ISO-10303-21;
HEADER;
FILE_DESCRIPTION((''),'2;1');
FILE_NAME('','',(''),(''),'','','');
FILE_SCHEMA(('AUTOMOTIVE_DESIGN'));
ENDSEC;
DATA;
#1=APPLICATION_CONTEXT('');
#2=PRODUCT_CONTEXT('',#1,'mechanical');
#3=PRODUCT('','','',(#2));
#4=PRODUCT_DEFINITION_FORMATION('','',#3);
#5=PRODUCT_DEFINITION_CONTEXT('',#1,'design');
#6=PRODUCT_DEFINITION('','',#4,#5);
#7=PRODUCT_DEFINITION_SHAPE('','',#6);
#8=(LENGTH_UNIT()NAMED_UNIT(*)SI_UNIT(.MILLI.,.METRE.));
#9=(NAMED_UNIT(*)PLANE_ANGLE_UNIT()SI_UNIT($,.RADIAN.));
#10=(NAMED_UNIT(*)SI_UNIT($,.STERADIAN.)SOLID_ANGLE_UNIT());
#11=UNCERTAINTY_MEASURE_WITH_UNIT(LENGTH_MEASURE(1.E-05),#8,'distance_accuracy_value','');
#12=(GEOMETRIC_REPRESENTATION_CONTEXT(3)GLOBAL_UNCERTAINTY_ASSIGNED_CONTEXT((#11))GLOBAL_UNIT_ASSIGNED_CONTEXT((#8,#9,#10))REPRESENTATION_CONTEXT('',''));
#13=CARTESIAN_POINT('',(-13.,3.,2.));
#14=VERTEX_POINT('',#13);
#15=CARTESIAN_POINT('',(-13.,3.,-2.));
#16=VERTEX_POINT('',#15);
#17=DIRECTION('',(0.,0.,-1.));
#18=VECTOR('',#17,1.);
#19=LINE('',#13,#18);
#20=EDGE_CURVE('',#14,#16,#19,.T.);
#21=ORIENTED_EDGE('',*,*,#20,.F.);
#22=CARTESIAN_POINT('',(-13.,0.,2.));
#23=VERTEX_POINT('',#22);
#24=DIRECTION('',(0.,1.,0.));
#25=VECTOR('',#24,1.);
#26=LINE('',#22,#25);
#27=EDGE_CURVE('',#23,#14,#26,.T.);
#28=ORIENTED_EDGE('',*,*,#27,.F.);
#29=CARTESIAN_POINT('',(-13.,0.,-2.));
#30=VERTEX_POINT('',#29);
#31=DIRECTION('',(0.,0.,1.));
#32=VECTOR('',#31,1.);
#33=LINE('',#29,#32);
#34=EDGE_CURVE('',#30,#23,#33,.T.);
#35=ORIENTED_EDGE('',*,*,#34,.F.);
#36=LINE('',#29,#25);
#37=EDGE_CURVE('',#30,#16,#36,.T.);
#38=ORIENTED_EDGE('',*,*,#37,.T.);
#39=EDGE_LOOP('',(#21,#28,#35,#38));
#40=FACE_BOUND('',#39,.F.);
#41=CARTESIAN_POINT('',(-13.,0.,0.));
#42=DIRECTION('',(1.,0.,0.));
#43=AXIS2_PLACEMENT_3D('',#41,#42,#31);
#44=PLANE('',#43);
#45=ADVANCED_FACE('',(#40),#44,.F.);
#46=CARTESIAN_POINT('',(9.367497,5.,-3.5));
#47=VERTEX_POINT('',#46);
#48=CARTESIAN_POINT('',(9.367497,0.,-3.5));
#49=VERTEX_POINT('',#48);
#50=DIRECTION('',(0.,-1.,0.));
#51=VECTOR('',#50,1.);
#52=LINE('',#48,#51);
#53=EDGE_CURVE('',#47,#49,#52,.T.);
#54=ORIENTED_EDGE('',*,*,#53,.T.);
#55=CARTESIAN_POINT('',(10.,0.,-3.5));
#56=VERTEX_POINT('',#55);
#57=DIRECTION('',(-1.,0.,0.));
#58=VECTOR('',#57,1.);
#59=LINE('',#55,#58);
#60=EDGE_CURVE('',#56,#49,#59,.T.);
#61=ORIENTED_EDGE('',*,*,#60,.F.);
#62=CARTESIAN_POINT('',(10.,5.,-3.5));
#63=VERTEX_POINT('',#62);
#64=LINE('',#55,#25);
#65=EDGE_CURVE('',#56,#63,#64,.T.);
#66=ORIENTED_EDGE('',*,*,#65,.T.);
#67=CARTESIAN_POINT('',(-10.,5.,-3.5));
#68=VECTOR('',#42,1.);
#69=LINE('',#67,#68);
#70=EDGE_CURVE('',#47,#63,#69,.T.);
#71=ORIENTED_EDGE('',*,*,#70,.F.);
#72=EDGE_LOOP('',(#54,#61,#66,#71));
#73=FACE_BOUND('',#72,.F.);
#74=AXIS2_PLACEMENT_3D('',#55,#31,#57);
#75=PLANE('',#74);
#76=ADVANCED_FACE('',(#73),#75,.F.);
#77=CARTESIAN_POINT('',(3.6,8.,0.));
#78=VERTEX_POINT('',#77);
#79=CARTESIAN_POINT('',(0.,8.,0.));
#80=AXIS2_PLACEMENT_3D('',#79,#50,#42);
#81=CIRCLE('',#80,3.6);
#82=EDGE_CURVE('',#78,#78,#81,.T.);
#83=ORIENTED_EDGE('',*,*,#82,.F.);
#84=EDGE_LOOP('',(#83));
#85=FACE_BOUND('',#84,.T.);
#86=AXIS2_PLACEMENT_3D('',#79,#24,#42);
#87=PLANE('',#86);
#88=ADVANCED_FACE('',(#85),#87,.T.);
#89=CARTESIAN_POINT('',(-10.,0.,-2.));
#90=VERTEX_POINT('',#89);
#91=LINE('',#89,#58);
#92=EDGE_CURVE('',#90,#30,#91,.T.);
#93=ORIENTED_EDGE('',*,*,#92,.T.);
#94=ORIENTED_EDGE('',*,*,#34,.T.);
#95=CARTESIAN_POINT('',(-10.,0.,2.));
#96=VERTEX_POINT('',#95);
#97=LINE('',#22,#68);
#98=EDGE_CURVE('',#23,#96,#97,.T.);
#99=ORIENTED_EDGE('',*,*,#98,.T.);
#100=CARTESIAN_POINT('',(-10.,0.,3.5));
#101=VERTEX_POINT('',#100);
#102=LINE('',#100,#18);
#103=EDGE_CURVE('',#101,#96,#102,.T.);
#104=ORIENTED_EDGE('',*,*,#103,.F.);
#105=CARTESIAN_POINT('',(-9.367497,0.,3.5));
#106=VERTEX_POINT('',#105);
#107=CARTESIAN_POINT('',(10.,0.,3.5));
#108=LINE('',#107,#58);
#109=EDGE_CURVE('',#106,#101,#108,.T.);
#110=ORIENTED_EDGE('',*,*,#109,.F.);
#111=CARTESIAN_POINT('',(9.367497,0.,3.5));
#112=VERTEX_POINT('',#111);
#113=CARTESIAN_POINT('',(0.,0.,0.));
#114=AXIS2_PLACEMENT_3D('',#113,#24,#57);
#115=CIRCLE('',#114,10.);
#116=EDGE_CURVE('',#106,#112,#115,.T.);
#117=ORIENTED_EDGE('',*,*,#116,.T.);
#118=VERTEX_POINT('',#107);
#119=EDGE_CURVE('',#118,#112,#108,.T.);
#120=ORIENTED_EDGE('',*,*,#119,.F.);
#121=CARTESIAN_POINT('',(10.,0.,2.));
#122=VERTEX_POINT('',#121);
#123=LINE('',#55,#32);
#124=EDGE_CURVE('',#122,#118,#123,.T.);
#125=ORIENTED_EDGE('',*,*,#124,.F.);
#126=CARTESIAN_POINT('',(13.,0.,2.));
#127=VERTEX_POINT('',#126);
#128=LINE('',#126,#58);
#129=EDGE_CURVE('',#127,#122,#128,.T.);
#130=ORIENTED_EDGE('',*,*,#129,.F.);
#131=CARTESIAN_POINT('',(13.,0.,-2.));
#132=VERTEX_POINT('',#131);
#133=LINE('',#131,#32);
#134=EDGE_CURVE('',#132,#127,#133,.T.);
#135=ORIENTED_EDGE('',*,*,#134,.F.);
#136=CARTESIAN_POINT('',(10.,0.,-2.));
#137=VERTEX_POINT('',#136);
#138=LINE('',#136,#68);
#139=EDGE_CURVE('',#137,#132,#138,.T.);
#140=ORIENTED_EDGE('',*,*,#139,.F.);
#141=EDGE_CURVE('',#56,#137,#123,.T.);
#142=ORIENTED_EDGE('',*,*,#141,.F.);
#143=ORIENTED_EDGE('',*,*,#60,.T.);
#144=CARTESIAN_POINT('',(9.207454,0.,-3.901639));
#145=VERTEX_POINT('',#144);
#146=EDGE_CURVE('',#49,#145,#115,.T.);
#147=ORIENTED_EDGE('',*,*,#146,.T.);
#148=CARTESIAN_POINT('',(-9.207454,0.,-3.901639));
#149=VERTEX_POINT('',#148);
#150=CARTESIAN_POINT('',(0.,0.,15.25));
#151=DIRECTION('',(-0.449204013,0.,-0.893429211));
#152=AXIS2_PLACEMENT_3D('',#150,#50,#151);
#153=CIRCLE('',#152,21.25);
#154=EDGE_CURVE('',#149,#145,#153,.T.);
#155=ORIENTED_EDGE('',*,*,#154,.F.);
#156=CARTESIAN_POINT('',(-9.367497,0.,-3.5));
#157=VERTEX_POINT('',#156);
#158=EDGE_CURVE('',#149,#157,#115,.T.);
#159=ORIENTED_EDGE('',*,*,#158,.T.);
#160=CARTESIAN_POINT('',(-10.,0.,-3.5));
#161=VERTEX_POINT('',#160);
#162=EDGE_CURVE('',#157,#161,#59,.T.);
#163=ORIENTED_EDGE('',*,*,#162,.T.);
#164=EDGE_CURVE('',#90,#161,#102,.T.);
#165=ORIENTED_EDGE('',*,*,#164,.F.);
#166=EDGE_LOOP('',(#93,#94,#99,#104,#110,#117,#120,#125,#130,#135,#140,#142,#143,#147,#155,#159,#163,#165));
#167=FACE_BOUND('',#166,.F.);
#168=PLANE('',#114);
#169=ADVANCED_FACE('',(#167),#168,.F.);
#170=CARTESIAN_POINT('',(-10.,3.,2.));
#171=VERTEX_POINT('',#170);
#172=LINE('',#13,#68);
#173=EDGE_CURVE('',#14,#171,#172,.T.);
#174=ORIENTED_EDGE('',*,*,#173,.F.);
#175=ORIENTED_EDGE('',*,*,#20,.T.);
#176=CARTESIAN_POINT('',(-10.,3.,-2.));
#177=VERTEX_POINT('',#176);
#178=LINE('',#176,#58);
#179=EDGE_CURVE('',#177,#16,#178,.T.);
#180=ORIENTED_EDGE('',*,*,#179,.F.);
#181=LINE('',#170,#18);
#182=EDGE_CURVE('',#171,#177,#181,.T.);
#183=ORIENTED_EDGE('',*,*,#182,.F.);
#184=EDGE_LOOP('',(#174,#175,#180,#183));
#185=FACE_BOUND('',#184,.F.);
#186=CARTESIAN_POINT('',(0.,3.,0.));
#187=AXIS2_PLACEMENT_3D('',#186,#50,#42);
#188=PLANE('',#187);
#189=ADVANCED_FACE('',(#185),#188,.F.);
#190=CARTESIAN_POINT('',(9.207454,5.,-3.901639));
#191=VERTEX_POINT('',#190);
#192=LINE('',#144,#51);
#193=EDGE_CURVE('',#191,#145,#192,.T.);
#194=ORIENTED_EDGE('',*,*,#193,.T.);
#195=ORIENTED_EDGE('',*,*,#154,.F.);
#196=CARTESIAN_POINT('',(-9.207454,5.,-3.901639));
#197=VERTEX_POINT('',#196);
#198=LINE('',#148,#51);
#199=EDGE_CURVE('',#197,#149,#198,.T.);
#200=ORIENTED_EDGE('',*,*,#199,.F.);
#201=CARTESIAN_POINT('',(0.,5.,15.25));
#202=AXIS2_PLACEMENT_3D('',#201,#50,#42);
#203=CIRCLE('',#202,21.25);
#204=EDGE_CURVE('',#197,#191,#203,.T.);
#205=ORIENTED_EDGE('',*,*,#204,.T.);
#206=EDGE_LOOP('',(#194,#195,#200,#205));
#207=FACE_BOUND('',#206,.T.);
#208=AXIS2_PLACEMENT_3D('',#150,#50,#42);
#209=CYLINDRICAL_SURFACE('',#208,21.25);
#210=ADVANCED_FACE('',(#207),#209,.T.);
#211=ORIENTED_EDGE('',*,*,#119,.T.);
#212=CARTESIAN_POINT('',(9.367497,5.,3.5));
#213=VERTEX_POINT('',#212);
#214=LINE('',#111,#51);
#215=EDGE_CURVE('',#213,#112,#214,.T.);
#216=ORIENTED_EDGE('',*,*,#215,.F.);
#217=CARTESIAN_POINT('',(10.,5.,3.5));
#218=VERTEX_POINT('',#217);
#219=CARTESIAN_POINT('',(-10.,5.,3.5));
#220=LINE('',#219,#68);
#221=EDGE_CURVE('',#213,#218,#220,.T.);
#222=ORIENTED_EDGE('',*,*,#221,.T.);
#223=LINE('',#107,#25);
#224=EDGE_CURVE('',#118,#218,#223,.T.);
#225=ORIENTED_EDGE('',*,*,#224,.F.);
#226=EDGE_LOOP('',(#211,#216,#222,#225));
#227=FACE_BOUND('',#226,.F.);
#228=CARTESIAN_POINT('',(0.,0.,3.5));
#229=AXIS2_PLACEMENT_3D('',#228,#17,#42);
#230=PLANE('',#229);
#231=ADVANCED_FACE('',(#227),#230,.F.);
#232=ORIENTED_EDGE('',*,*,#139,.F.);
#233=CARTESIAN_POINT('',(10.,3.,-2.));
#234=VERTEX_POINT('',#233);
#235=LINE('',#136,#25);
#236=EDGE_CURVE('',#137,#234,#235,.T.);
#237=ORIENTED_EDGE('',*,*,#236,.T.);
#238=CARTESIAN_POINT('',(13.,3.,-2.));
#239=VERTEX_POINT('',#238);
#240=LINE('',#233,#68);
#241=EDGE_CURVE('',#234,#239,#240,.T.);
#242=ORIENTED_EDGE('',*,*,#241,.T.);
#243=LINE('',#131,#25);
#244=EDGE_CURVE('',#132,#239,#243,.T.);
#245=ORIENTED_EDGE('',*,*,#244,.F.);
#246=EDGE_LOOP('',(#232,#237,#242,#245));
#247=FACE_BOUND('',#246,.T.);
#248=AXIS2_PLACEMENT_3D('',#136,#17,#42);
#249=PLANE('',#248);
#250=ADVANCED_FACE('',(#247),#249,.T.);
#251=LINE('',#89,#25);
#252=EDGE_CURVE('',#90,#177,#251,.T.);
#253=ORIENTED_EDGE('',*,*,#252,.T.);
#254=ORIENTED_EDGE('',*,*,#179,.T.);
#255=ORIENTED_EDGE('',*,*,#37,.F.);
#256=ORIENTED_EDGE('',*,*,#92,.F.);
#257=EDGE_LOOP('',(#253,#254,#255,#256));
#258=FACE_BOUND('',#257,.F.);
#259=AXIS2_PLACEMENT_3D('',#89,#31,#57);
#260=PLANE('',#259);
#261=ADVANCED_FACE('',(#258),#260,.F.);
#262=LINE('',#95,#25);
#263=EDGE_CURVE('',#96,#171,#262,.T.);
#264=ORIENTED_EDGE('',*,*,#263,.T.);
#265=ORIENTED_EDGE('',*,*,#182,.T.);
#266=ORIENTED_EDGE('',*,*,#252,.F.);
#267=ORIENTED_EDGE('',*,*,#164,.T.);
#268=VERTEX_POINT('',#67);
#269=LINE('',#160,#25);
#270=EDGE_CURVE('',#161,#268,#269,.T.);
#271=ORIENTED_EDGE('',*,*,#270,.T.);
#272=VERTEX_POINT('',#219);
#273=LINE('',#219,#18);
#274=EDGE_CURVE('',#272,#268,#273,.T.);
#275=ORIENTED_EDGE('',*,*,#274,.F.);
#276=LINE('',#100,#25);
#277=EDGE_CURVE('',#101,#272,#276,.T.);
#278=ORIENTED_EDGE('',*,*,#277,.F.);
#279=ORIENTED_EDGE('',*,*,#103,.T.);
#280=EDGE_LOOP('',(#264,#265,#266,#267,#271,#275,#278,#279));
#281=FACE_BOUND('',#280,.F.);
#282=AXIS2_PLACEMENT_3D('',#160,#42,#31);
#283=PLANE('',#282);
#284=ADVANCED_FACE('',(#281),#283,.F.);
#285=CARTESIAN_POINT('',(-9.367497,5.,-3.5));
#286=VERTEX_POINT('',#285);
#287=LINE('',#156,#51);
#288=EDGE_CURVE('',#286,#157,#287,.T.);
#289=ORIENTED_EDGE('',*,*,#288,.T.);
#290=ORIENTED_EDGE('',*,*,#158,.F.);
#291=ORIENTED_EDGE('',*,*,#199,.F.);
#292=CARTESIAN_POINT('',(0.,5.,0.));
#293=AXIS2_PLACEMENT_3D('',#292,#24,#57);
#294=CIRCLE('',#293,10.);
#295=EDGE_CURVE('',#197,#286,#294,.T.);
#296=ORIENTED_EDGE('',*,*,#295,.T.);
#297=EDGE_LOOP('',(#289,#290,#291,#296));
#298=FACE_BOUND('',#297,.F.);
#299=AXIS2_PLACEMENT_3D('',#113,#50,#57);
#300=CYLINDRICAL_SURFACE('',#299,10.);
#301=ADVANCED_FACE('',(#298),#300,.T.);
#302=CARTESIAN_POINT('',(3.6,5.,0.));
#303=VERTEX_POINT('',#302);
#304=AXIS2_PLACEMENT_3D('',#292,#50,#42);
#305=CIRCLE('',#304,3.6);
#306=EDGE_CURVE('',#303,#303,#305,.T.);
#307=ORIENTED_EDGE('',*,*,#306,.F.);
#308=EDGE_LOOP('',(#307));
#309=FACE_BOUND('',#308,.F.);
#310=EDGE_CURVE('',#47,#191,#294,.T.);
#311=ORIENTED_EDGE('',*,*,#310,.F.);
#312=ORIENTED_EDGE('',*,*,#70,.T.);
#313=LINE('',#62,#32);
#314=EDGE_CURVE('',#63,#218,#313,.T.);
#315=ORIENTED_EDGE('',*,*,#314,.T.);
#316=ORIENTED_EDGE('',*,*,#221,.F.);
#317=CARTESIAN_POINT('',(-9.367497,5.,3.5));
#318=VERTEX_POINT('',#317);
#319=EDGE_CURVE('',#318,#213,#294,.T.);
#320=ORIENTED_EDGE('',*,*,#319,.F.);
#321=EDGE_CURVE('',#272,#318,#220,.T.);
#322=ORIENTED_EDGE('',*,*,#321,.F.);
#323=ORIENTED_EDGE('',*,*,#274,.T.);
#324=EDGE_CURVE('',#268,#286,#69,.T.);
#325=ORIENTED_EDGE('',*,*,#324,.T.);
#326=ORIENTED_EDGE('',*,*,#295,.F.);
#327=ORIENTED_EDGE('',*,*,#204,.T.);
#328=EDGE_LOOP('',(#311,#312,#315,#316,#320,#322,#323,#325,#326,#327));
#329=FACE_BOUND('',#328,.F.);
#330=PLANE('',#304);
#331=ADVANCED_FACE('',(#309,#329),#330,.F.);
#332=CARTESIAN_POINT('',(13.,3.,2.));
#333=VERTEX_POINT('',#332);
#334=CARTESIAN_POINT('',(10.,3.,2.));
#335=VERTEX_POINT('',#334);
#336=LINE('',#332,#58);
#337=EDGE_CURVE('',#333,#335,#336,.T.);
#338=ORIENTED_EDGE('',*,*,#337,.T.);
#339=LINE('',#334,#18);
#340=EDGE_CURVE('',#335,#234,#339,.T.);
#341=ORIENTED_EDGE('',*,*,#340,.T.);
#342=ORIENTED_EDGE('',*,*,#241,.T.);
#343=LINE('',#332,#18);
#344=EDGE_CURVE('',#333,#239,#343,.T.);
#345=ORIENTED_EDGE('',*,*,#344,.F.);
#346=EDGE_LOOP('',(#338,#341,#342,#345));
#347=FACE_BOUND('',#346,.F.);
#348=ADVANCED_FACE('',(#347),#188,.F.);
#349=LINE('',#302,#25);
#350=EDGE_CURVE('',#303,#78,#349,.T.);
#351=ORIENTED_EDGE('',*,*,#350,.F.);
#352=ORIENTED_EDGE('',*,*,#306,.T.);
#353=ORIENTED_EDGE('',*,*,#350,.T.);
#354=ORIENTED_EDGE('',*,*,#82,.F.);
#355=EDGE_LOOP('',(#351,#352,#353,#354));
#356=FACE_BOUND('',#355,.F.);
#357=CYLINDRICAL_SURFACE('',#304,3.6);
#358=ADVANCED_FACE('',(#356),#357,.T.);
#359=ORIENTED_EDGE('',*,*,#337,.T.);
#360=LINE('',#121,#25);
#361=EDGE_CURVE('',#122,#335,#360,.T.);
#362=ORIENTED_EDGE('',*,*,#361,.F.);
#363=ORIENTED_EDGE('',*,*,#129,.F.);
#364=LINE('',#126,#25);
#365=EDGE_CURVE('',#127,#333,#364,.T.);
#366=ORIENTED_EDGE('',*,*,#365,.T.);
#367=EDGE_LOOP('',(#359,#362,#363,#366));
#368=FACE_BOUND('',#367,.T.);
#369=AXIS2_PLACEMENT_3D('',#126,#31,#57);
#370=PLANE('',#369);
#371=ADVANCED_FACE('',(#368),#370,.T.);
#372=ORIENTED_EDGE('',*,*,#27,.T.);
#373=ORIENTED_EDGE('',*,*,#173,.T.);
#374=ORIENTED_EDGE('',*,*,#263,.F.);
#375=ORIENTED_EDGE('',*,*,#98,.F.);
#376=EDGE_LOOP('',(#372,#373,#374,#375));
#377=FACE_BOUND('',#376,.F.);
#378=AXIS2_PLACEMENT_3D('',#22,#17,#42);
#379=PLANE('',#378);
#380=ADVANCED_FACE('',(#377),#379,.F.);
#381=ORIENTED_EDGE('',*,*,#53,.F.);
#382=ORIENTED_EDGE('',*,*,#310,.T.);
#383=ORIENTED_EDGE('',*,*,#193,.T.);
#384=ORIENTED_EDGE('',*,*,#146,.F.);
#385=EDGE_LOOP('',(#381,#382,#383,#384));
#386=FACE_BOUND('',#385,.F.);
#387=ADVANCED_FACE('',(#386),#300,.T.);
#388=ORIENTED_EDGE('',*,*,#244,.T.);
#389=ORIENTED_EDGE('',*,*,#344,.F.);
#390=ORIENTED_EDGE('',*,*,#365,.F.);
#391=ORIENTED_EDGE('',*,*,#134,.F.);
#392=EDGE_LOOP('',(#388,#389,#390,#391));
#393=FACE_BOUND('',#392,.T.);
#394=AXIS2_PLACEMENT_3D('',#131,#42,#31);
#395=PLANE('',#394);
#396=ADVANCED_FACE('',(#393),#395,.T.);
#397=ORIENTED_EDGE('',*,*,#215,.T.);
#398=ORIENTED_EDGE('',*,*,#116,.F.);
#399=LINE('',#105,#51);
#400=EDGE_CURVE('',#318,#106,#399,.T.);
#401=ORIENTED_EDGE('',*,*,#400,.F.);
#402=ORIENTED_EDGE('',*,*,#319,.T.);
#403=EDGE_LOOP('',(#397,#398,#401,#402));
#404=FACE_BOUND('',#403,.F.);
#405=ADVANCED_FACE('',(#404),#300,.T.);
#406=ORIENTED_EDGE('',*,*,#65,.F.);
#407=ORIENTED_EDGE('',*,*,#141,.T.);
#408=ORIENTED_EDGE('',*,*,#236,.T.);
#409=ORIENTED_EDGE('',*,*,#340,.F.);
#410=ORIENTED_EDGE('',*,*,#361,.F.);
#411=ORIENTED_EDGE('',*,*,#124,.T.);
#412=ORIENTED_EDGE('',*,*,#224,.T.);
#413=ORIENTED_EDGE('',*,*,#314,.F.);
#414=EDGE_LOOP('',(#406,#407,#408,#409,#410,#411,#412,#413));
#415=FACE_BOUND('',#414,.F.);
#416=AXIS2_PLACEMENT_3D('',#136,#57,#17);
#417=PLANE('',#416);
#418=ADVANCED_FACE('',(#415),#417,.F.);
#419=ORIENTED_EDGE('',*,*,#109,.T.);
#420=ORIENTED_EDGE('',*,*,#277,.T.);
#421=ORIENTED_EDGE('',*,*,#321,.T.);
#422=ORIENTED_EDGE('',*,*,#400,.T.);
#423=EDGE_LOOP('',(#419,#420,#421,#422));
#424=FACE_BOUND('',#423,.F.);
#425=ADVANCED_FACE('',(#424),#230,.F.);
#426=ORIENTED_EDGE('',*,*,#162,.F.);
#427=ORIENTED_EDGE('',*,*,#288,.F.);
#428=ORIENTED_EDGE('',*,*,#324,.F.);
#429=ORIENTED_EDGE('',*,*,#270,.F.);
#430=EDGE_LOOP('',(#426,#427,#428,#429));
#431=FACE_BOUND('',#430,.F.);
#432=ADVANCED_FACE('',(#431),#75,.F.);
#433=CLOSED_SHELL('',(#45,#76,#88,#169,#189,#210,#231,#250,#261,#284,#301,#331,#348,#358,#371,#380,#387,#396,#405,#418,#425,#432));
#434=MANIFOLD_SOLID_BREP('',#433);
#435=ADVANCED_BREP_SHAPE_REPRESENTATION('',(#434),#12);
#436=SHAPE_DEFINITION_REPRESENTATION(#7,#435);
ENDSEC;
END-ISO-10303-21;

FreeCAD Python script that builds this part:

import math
import FreeCAD as App
import Part
import Sketcher

V = App.Vector
Q = App.Units.Quantity


def add_polygon(sketch, points):
    """Adds a closed chain of lines whose ends are joined by coincident constraints."""
    first, n = sketch.GeometryCount, len(points)
    for a, b in zip(points, points[1:] + points[:1]):
        sketch.addGeometry(Part.LineSegment(App.Vector(*a, 0), App.Vector(*b, 0)), False)
    for i in range(n):
        sketch.addConstraint(Sketcher.Constraint("Coincident", first + i, 2, first + (i + 1) % n, 1))

doc = App.newDocument("Part")
body = doc.addObject("PartDesign::Body", "Body")

sketch1 = body.newObject("Sketcher::SketchObject", "Sketch")
sketch1.AttachmentSupport = (doc.getObject("XZ_Plane"), [""])
sketch1.MapMode = "FlatFace"
sketch1.addGeometry(Part.Circle(V(0, 0, 0), V(0, 0, 1), 10), False)
sketch1.addConstraint([
    Sketcher.Constraint("Coincident", 0, 3, -1, 1),
    Sketcher.Constraint("Diameter", 0, Q("20 mm")),
])
pad1 = body.newObject("PartDesign::Pad", "Pad")
pad1.Profile = sketch1
pad1.Length = 5
pad1.Reversed = True

sketch2 = body.newObject("Sketcher::SketchObject", "Sketch001")
sketch2.AttachmentSupport = (doc.getObject("XZ_Plane"), [""])
sketch2.MapMode = "FlatFace"
sketch2.AttachmentOffset = App.Placement(V(0, 0, -5), App.Rotation())
sketch2.addGeometry(Part.Circle(V(0, 0, 0), V(0, 0, 1), 3.6), False)
sketch2.addConstraint([
    Sketcher.Constraint("Coincident", 0, 3, -1, 1),
    Sketcher.Constraint("Diameter", 0, Q("7.2 mm")),
])
pad2 = body.newObject("PartDesign::Pad", "Pad001")
pad2.Profile = sketch2
pad2.Length = 3
pad2.Reversed = True

sketch3 = body.newObject("Sketcher::SketchObject", "Sketch002")
sketch3.AttachmentSupport = (doc.getObject("XZ_Plane"), [""])
sketch3.MapMode = "FlatFace"
add_polygon(sketch3, [(10, -4), (10, 4), (-10, 4), (-10, -4)])
sketch3.addConstraint([
    Sketcher.Constraint("Vertical", 0),
    Sketcher.Constraint("Horizontal", 1),
    Sketcher.Constraint("Vertical", 2),
    Sketcher.Constraint("Horizontal", 3),
    Sketcher.Constraint("Symmetric", 0, 2, 2, 2, -1, 1),
    Sketcher.Constraint("DistanceY", 0, 1, 0, 2, Q("7 mm")),
    Sketcher.Constraint("DistanceX", 1, 2, 1, 1, Q("20 mm")),
])
pad3 = body.newObject("PartDesign::Pad", "Pad002")
pad3.Profile = sketch3
pad3.Length = 5
pad3.Reversed = True

sketch4 = body.newObject("Sketcher::SketchObject", "Sketch003")
sketch4.AttachmentSupport = (doc.getObject("XZ_Plane"), [""])
sketch4.MapMode = "FlatFace"
add_polygon(sketch4, [(10, -2), (13, -2), (13, 2), (10, 2)])
add_polygon(sketch4, [(-13, 2), (-13, -2), (-10, -2), (-10, 2)])
sketch4.addConstraint([
    Sketcher.Constraint("Horizontal", 0),
    Sketcher.Constraint("Vertical", 1),
    Sketcher.Constraint("Horizontal", 2),
    Sketcher.Constraint("Vertical", 3),
    Sketcher.Constraint("Vertical", 4),
    Sketcher.Constraint("Horizontal", 5),
    Sketcher.Constraint("Vertical", 6),
    Sketcher.Constraint("Horizontal", 7),
    Sketcher.Constraint("Symmetric", 1, 2, 4, 2, -1, 1),
    Sketcher.Constraint("Symmetric", 3, 2, 6, 2, -1, 1),
    Sketcher.Constraint("Horizontal", 3, 2, 4, 2),
    Sketcher.Constraint("DistanceX", 0, 1, 0, 2, Q("3 mm")),
    Sketcher.Constraint("DistanceY", 1, 1, 1, 2, Q("4 mm")),
    Sketcher.Constraint("DistanceX", -1, 1, 0, 2, Q("13 mm")),
])
pad4 = body.newObject("PartDesign::Pad", "Pad003")
pad4.Profile = sketch4
pad4.Length = 3
pad4.Reversed = True

sketch5 = body.newObject("Sketcher::SketchObject", "Sketch004")
sketch5.AttachmentSupport = (doc.getObject("XZ_Plane"), [""])
sketch5.MapMode = "FlatFace"
sketch5.addGeometry([
    Part.LineSegment(V(-9.5, -3.7, 0), V(-9.5, -20.6, 0)),
    Part.LineSegment(V(-9.5, -20.6, 0), V(10.2, -20.6, 0)),
    Part.LineSegment(V(10.2, -20.6, 0), V(10.2, -3.7, 0)),
    Part.LineSegment(V(10.2, -3.7, 0), V(9.5, -3.7, 0)),
    Part.ArcOfCircle(Part.Circle(V(0, 15.2, 0), V(0, 0, 1), 21.2), math.radians(-117), math.radians(-63)),
], False)
sketch5.addConstraint([
    Sketcher.Constraint("Coincident", 0, 2, 1, 1),
    Sketcher.Constraint("Coincident", 1, 2, 2, 1),
    Sketcher.Constraint("Coincident", 2, 2, 3, 1),
    Sketcher.Constraint("Coincident", 3, 2, 4, 2),
    Sketcher.Constraint("Coincident", 4, 1, 0, 1),
    Sketcher.Constraint("Vertical", 0),
    Sketcher.Constraint("Horizontal", 1),
    Sketcher.Constraint("Vertical", 2),
    Sketcher.Constraint("Horizontal", 3),
    Sketcher.Constraint("Symmetric", 3, 2, 4, 1, -2),
    Sketcher.Constraint("Radius", 4, Q("21.25 mm")),
    Sketcher.Constraint("DistanceY", -1, 1, 4, 3, Q("15.25 mm")),
    Sketcher.Constraint("DistanceX", 1, 1, 1, 2, Q("19.7744 mm")),
    Sketcher.Constraint("DistanceX", 3, 2, 3, 1, Q("0.6832 mm")),
    Sketcher.Constraint("DistanceY", 0, 2, 0, 1, Q("16.8423 mm")),
])
pocket1 = body.newObject("PartDesign::Pocket", "Pocket")
pocket1.Profile = sketch5
pocket1.Type = "ThroughAll"

doc.recompute()
